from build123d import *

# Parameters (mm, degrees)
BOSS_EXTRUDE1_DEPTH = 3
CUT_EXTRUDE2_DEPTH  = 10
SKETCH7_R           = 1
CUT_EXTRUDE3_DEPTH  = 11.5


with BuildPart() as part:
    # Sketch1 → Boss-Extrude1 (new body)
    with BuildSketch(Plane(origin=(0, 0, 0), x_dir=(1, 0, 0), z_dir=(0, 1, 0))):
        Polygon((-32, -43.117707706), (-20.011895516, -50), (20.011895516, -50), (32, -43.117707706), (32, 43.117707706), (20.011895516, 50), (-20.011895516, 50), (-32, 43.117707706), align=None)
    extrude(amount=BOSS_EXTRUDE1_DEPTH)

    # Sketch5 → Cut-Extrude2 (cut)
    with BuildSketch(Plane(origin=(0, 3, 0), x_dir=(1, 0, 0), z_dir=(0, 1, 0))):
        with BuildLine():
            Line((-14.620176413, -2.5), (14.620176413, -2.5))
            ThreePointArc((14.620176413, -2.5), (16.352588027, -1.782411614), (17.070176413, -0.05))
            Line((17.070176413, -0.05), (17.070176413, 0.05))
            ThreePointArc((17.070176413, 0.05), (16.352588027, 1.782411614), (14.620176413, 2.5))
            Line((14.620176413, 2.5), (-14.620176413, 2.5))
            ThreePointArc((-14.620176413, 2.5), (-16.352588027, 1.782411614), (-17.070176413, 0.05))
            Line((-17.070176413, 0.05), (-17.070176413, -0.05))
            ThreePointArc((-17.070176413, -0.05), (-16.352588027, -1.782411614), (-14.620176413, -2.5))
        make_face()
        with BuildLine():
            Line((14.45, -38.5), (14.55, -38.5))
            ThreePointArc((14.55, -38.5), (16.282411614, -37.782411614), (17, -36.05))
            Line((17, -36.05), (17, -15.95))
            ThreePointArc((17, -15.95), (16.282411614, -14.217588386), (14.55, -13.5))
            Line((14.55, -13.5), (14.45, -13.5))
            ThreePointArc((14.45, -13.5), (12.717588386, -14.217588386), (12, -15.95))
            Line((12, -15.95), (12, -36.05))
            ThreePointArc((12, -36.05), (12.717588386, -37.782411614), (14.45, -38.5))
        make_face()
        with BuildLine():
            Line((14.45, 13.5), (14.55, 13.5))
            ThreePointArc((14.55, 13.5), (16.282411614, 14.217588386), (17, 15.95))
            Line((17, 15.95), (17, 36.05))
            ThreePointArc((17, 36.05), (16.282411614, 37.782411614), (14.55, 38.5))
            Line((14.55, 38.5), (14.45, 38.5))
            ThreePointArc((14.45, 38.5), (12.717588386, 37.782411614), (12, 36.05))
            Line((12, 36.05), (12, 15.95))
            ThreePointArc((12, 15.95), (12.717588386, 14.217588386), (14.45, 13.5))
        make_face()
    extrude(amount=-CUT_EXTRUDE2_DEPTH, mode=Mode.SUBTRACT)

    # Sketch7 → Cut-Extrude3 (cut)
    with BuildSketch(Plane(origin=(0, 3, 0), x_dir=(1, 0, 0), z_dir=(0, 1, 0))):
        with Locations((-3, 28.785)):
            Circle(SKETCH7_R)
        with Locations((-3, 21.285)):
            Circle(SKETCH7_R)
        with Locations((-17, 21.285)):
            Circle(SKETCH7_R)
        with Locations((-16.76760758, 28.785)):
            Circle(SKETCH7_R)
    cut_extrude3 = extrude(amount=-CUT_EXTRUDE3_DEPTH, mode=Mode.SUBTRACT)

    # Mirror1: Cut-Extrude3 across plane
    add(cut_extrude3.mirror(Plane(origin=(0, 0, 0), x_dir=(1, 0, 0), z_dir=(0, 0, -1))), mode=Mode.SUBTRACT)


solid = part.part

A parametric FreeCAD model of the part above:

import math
import FreeCAD as App
import Part
import Sketcher
from FreeCAD import Vector
Q = App.Units.Quantity


def add_polygon(sketch, points):
    """Adds a closed chain of lines whose ends are joined by coincident constraints."""
    first, n = sketch.GeometryCount, len(points)
    for a, b in zip(points, points[1:] + points[:1]):
        sketch.addGeometry(Part.LineSegment(App.Vector(*a, 0), App.Vector(*b, 0)), False)
    for i in range(n):
        sketch.addConstraint(Sketcher.Constraint("Coincident", first + i, 2, first + (i + 1) % n, 1))

doc = App.newDocument("Part")
body = doc.addObject("PartDesign::Body", "Body")

sketch1 = body.newObject("Sketcher::SketchObject", "Sketch")
sketch1.AttachmentSupport = (doc.getObject("XZ_Plane"), [""])
sketch1.MapMode = "FlatFace"
add_polygon(sketch1, [(-32, 43), (-20, 50), (20, 50), (32, 43), (32, -43), (20, -50), (-20, -50), (-32, -43)])
sketch1.addConstraint(Sketcher.Constraint("Horizontal", 1))
sketch1.addConstraint(Sketcher.Constraint("Vertical", 3))
sketch1.addConstraint(Sketcher.Constraint("Horizontal", 5))
sketch1.addConstraint(Sketcher.Constraint("Vertical", 7))
sketch1.addConstraint(Sketcher.Constraint("Symmetric", 0, 2, 4, 2, -1, 1))
sketch1.addConstraint(Sketcher.Constraint("Symmetric", 2, 2, 6, 2, -1, 1))
sketch1.addConstraint(Sketcher.Constraint("Parallel", 0, 4))
sketch1.addConstraint(Sketcher.Constraint("Parallel", 2, 6))
sketch1.addConstraint(Sketcher.Constraint("Horizontal", 3, 2, 6, 2))
sketch1.addConstraint(Sketcher.Constraint("Vertical", 1, 2, 4, 2))
sketch1.addConstraint(Sketcher.Constraint("DistanceY", -1, 1, 0, 2, Q("50 mm")))
sketch1.addConstraint(Sketcher.Constraint("DistanceX", -1, 1, 2, 2, Q("32 mm")))
sketch1.addConstraint(Sketcher.Constraint("DistanceX", 1, 1, 1, 2, Q("40.023791 mm")))
sketch1.addConstraint(Sketcher.Constraint("Distance", 0, Q("13.823191 mm")))
pad1 = body.newObject("PartDesign::Pad", "Pad")
pad1.Profile = sketch1
pad1.Length = 3
pad1.Reversed = True

sketch2 = body.newObject("Sketcher::SketchObject", "Sketch001")
sketch2.AttachmentSupport = (doc.getObject("XZ_Plane"), [""])
sketch2.MapMode = "FlatFace"
sketch2.AttachmentOffset = App.Placement(Vector(0, 0, -3), App.Rotation())
sketch2.addGeometry(Part.LineSegment(Vector(-14.62, 2.5, 0), Vector(14.62, 2.5, 0)), False)
sketch2.addGeometry(Part.ArcOfCircle(Part.Circle(Vector(14.62, 0.05, 0), Vector(0, 0, 1), 2.45), math.radians(0), math.radians(90)), False)
sketch2.addGeometry(Part.LineSegment(Vector(17.07, 0.05, 0), Vector(17.07, -0.05, 0)), False)
sketch2.addGeometry(Part.ArcOfCircle(Part.Circle(Vector(14.62, -0.05, 0), Vector(0, 0, 1), 2.45), math.radians(-90), math.radians(0)), False)
sketch2.addGeometry(Part.LineSegment(Vector(14.62, -2.5, 0), Vector(-14.62, -2.5, 0)), False)
sketch2.addGeometry(Part.ArcOfCircle(Part.Circle(Vector(-14.62, -0.05, 0), Vector(0, 0, 1), 2.45), math.radians(180), math.radians(270)), False)
sketch2.addGeometry(Part.LineSegment(Vector(-17.07, -0.05, 0), Vector(-17.07, 0.05, 0)), False)
sketch2.addGeometry(Part.ArcOfCircle(Part.Circle(Vector(-14.62, 0.05, 0), Vector(0, 0, 1), 2.45), math.radians(90), math.radians(180)), False)
sketch2.addGeometry(Part.LineSegment(Vector(14.45, 38.5, 0), Vector(14.55, 38.5, 0)), False)
sketch2.addGeometry(Part.ArcOfCircle(Part.Circle(Vector(14.55, 36.05, 0), Vector(0, 0, 1), 2.45), math.radians(0), math.radians(90)), False)
sketch2.addGeometry(Part.LineSegment(Vector(17, 36.05, 0), Vector(17, 15.95, 0)), False)
sketch2.addGeometry(Part.ArcOfCircle(Part.Circle(Vector(14.55, 15.95, 0), Vector(0, 0, 1), 2.45), math.radians(-90), math.radians(0)), False)
sketch2.addGeometry(Part.LineSegment(Vector(14.55, 13.5, 0), Vector(14.45, 13.5, 0)), False)
sketch2.addGeometry(Part.ArcOfCircle(Part.Circle(Vector(14.45, 15.95, 0), Vector(0, 0, 1), 2.45), math.radians(180), math.radians(270)), False)
sketch2.addGeometry(Part.LineSegment(Vector(12, 15.95, 0), Vector(12, 36.05, 0)), False)
sketch2.addGeometry(Part.ArcOfCircle(Part.Circle(Vector(14.45, 36.05, 0), Vector(0, 0, 1), 2.45), math.radians(90), math.radians(180)), False)
sketch2.addGeometry(Part.LineSegment(Vector(14.45, -13.5, 0), Vector(14.55, -13.5, 0)), False)
sketch2.addGeometry(Part.ArcOfCircle(Part.Circle(Vector(14.55, -15.95, 0), Vector(0, 0, 1), 2.45), math.radians(0), math.radians(90)), False)
sketch2.addGeometry(Part.LineSegment(Vector(17, -15.95, 0), Vector(17, -36.05, 0)), False)
sketch2.addGeometry(Part.ArcOfCircle(Part.Circle(Vector(14.55, -36.05, 0), Vector(0, 0, 1), 2.45), math.radians(-90), math.radians(0)), False)
sketch2.addGeometry(Part.LineSegment(Vector(14.55, -38.5, 0), Vector(14.45, -38.5, 0)), False)
sketch2.addGeometry(Part.ArcOfCircle(Part.Circle(Vector(14.45, -36.05, 0), Vector(0, 0, 1), 2.45), math.radians(180), math.radians(270)), False)
sketch2.addGeometry(Part.LineSegment(Vector(12, -36.05, 0), Vector(12, -15.95, 0)), False)
sketch2.addGeometry(Part.ArcOfCircle(Part.Circle(Vector(14.45, -15.95, 0), Vector(0, 0, 1), 2.45), math.radians(90), math.radians(180)), False)
sketch2.addConstraint(Sketcher.Constraint("Tangent", 0, 2, 1, 2))
sketch2.addConstraint(Sketcher.Constraint("Tangent", 1, 1, 2, 1))
sketch2.addConstraint(Sketcher.Constraint("Tangent", 2, 2, 3, 2))
sketch2.addConstraint(Sketcher.Constraint("Tangent", 3, 1, 4, 1))
sketch2.addConstraint(Sketcher.Constraint("Tangent", 4, 2, 5, 2))
sketch2.addConstraint(Sketcher.Constraint("Tangent", 5, 1, 6, 1))
sketch2.addConstraint(Sketcher.Constraint("Tangent", 6, 2, 7, 2))
sketch2.addConstraint(Sketcher.Constraint("Tangent", 7, 1, 0, 1))
sketch2.addConstraint(Sketcher.Constraint("Tangent", 8, 2, 9, 2))
sketch2.addConstraint(Sketcher.Constraint("Tangent", 9, 1, 10, 1))
sketch2.addConstraint(Sketcher.Constraint("Tangent", 10, 2, 11, 2))
sketch2.addConstraint(Sketcher.Constraint("Tangent", 11, 1, 12, 1))
sketch2.addConstraint(Sketcher.Constraint("Tangent", 12, 2, 13, 2))
sketch2.addConstraint(Sketcher.Constraint("Tangent", 13, 1, 14, 1))
sketch2.addConstraint(Sketcher.Constraint("Tangent", 14, 2, 15, 2))
sketch2.addConstraint(Sketcher.Constraint("Tangent", 15, 1, 8, 1))
sketch2.addConstraint(Sketcher.Constraint("Tangent", 16, 2, 17, 2))
sketch2.addConstraint(Sketcher.Constraint("Tangent", 17, 1, 18, 1))
sketch2.addConstraint(Sketcher.Constraint("Tangent", 18, 2, 19, 2))
sketch2.addConstraint(Sketcher.Constraint("Tangent", 19, 1, 20, 1))
sketch2.addConstraint(Sketcher.Constraint("Tangent", 20, 2, 21, 2))
sketch2.addConstraint(Sketcher.Constraint("Tangent", 21, 1, 22, 1))
sketch2.addConstraint(Sketcher.Constraint("Tangent", 22, 2, 23, 2))
sketch2.addConstraint(Sketcher.Constraint("Tangent", 23, 1, 16, 1))
sketch2.addConstraint(Sketcher.Constraint("Horizontal", 0))
sketch2.addConstraint(Sketcher.Constraint("Vertical", 2))
sketch2.addConstraint(Sketcher.Constraint("Horizontal", 4))
sketch2.addConstraint(Sketcher.Constraint("Vertical", 6))
sketch2.addConstraint(Sketcher.Constraint("Horizontal", 8))
sketch2.addConstraint(Sketcher.Constraint("Vertical", 10))
sketch2.addConstraint(Sketcher.Constraint("Horizontal", 12))
sketch2.addConstraint(Sketcher.Constraint("Vertical", 14))
sketch2.addConstraint(Sketcher.Constraint("Horizontal", 16))
sketch2.addConstraint(Sketcher.Constraint("Vertical", 18))
sketch2.addConstraint(Sketcher.Constraint("Horizontal", 20))
sketch2.addConstraint(Sketcher.Constraint("Vertical", 22))
sketch2.addConstraint(Sketcher.Constraint("Equal", 1, 3))
sketch2.addConstraint(Sketcher.Constraint("Equal", 3, 5))
sketch2.addConstraint(Sketcher.Constraint("Equal", 5, 7))
sketch2.addConstraint(Sketcher.Constraint("Equal", 7, 9))
sketch2.addConstraint(Sketcher.Constraint("Equal", 9, 11))
sketch2.addConstraint(Sketcher.Constraint("Equal", 11, 13))
sketch2.addConstraint(Sketcher.Constraint("Equal", 13, 15))
sketch2.addConstraint(Sketcher.Constraint("Equal", 15, 17))
sketch2.addConstraint(Sketcher.Constraint("Equal", 17, 19))
sketch2.addConstraint(Sketcher.Constraint("Equal", 19, 21))
sketch2.addConstraint(Sketcher.Constraint("Equal", 21, 23))
sketch2.addConstraint(Sketcher.Constraint("Symmetric", 1, 3, 5, 3, -1, 1))
sketch2.addConstraint(Sketcher.Constraint("Symmetric", 11, 3, 17, 3, -1))
sketch2.addConstraint(Sketcher.Constraint("Symmetric", 15, 3, 21, 3, -1))
sketch2.addConstraint(Sketcher.Constraint("Equal", 20, 2))
sketch2.addConstraint(Sketcher.Constraint("Radius", 1, Q("2.45 mm")))
sketch2.addConstraint(Sketcher.Constraint("DistanceX", 8, 1, 8, 2, Q("0.1 mm")))
sketch2.addConstraint(Sketcher.Constraint("DistanceY", 10, 2, 10, 1, Q("20.1 mm")))
sketch2.addConstraint(Sketcher.Constraint("DistanceX", -1, 1, 9, 1, Q("17 mm")))
sketch2.addConstraint(Sketcher.Constraint("DistanceY", 1, 3, 9, 3, Q("36 mm")))
sketch2.addConstraint(Sketcher.Constraint("DistanceX", 0, 1, 0, 2, Q("29.240353 mm")))
pocket1 = body.newObject("PartDesign::Pocket", "Pocket")
pocket1.Profile = sketch2
pocket1.Length = 10
pocket1.Reversed = True

sketch3 = body.newObject("Sketcher::SketchObject", "Sketch002")
sketch3.AttachmentSupport = (doc.getObject("XZ_Plane"), [""])
sketch3.MapMode = "FlatFace"
sketch3.AttachmentOffset = App.Placement(Vector(0, 0, -3), App.Rotation())
sketch3.addGeometry(Part.Circle(Vector(-3, -28.8, 0), Vector(0, 0, 1), 1), False)
sketch3.addGeometry(Part.Circle(Vector(-3, -21.3, 0), Vector(0, 0, 1), 1), False)
sketch3.addGeometry(Part.Circle(Vector(-17, -21.3, 0), Vector(0, 0, 1), 1), False)
sketch3.addGeometry(Part.Circle(Vector(-16.8, -28.8, 0), Vector(0, 0, 1), 1), False)
sketch3.addConstraint(Sketcher.Constraint("Equal", 0, 1))
sketch3.addConstraint(Sketcher.Constraint("Equal", 1, 2))
sketch3.addConstraint(Sketcher.Constraint("Equal", 2, 3))
sketch3.addConstraint(Sketcher.Constraint("Horizontal", 1, 3, 2, 3))
sketch3.addConstraint(Sketcher.Constraint("Horizontal", 0, 3, 3, 3))
sketch3.addConstraint(Sketcher.Constraint("Vertical", 0, 3, 1, 3))
sketch3.addConstraint(Sketcher.Constraint("Diameter", 0, Q("2 mm")))
sketch3.addConstraint(Sketcher.Constraint("DistanceX", 0, 3, -1, 1, Q("3 mm")))
sketch3.addConstraint(Sketcher.Constraint("DistanceX", 2, 3, -1, 1, Q("17 mm")))
sketch3.addConstraint(Sketcher.Constraint("DistanceY", 0, 3, 1, 3, Q("7.5 mm")))
sketch3.addConstraint(Sketcher.Constraint("DistanceY", 0, 3, -1, 1, Q("28.785 mm")))
sketch3.addConstraint(Sketcher.Constraint("DistanceX", 3, 3, -1, 1, Q("16.767608 mm")))
pocket2 = body.newObject("PartDesign::Pocket", "Pocket001")
pocket2.Profile = sketch3
pocket2.Length = 11.5
pocket2.Reversed = True
doc.recompute()

mirrored = body.newObject("PartDesign::Mirrored", "Mirrored")
mirrored.Originals = [pocket2]
mirrored.MirrorPlane = (doc.getObject("XY_Plane"), [""])
body.Tip = mirrored

doc.recompute()
